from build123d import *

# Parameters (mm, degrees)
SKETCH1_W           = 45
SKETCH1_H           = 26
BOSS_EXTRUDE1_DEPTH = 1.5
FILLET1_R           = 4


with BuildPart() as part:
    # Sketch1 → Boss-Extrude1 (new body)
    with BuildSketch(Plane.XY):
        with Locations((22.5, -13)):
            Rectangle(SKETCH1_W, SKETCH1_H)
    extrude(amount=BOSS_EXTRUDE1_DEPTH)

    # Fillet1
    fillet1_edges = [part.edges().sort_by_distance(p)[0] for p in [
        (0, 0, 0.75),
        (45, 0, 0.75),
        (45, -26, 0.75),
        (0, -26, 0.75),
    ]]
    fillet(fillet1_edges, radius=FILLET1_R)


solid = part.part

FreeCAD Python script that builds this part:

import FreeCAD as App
import Part
import Sketcher
from FreeCAD import Vector


def edges_at(feature, points):
    """Names of the edges that pass closest to the given points."""
    edges = feature.Shape.Edges
    near = lambda p: min(range(len(edges)), key=lambda i: edges[i].distToShape(Part.Vertex(*p))[0])
    return sorted({f"Edge{near(p) + 1}" for p in points})

doc = App.newDocument("Part")
body = doc.addObject("PartDesign::Body", "Body")

# Sketch on XY plane
sketch1 = doc.addObject("Sketcher::SketchObject", "Sketch")
body.addObject(sketch1)
sketch1.AttachmentSupport = (doc.XY_Plane, [""])
sketch1.MapMode = "FlatFace"
sketch1.addGeometry(Part.LineSegment(Vector(0, 0, 0), Vector(0, -26, 0)), False)
sketch1.addGeometry(Part.LineSegment(Vector(0, -26, 0), Vector(45, -26, 0)), False)
sketch1.addGeometry(Part.LineSegment(Vector(45, -26, 0), Vector(45, 0, 0)), False)
sketch1.addGeometry(Part.LineSegment(Vector(45, 0, 0), Vector(0, 0, 0)), False)
sketch1.addConstraint(Sketcher.Constraint("Coincident", 0, 2, 1, 1))
sketch1.addConstraint(Sketcher.Constraint("Coincident", 1, 2, 2, 1))
sketch1.addConstraint(Sketcher.Constraint("Coincident", 2, 2, 3, 1))
sketch1.addConstraint(Sketcher.Constraint("Coincident", 3, 2, 0, 1))
sketch1.addConstraint(Sketcher.Constraint("Vertical", 0))
sketch1.addConstraint(Sketcher.Constraint("Horizontal", 1))
sketch1.addConstraint(Sketcher.Constraint("Vertical", 2))
sketch1.addConstraint(Sketcher.Constraint("Horizontal", 3))
sketch1.addConstraint(Sketcher.Constraint("Coincident", 3, 2, -1, 1))
sketch1.addConstraint(Sketcher.Constraint("DistanceX", 1, 1, 1, 2, 45.0))
sketch1.addConstraint(Sketcher.Constraint("DistanceY", 0, 2, 0, 1, 26.0))
pad1 = doc.addObject("PartDesign::Pad", "Pad")
body.addObject(pad1)
pad1.Profile = sketch1
pad1.Length = 1.5
doc.recompute()

fillet = doc.addObject("PartDesign::Fillet", "Fillet")
body.addObject(fillet)
fillet.Base = (pad1, edges_at(pad1, [
    (0, 0, 0.75),
    (45, 0, 0.75),
    (45, -26, 0.75),
    (0, -26, 0.75),
]))
fillet.Radius = 4

doc.recompute()
